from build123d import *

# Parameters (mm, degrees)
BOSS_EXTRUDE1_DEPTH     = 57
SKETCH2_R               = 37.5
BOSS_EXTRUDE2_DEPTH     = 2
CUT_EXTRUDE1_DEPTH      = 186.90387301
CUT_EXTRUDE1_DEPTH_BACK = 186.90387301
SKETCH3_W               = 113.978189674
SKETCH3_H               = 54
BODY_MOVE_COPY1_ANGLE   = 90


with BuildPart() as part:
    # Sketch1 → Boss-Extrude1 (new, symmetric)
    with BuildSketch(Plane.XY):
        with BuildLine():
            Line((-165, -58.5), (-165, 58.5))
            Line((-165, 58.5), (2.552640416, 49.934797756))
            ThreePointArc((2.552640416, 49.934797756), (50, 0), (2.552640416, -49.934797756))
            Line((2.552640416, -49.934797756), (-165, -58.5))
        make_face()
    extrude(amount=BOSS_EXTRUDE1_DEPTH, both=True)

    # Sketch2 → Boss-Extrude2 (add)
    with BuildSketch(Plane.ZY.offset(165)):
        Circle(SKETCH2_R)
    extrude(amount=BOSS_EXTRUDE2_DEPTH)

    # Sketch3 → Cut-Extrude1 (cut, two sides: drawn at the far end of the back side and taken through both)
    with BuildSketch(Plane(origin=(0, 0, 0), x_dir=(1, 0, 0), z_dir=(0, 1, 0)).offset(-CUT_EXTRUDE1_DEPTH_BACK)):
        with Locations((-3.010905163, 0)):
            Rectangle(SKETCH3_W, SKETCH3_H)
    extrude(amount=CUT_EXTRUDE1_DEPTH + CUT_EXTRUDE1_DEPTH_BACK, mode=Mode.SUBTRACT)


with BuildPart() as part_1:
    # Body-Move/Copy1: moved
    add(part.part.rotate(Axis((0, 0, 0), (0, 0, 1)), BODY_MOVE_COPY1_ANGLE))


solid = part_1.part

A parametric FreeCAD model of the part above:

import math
import FreeCAD as App
import Part
import Sketcher
from FreeCAD import Vector

doc = App.newDocument("Part")
body = doc.addObject("PartDesign::Body", "Body")

sketch1 = body.newObject("Sketcher::SketchObject", "Sketch")
sketch1.AttachmentSupport = (doc.getObject("XY_Plane"), [""])
sketch1.MapMode = "FlatFace"
sketch1.addGeometry([
    Part.LineSegment(Vector(-165, 58, 0), Vector(-165, -58, 0)),
    Part.LineSegment(Vector(-165, -58, 0), Vector(3, -50, 0)),
    Part.ArcOfCircle(Part.Circle(Vector(0, 0, 0), Vector(0, 0, 1), 50), math.radians(-87), math.radians(87)),
    Part.LineSegment(Vector(3, 50, 0), Vector(-165, 58, 0)),
], False)
sketch1.addConstraint([
    Sketcher.Constraint("Coincident", 0, 2, 1, 1),
    Sketcher.Constraint("Tangent", 1, 2, 2, 1),
    Sketcher.Constraint("Tangent", 2, 2, 3, 1),
    Sketcher.Constraint("Coincident", 3, 2, 0, 1),
    Sketcher.Constraint("Vertical", 0),
    Sketcher.Constraint("Coincident", 2, 3, -1, 1),
    Sketcher.Constraint("Vertical", 1, 2, 2, 2),
    Sketcher.Constraint("Radius", 2, 50.0),
    Sketcher.Constraint("DistanceY", 0, 2, 0, 1, 117.0),
    Sketcher.Constraint("DistanceX", 0, 2, -1, 1, 165.0),
])
pad1 = body.newObject("PartDesign::Pad", "Pad")
pad1.Profile = sketch1
pad1.Length = 114
pad1.Midplane = True

sketch2 = body.newObject("Sketcher::SketchObject", "Sketch001")
sketch2.AttachmentSupport = (doc.getObject("YZ_Plane"), [""])
sketch2.MapMode = "FlatFace"
sketch2.AttachmentOffset = App.Placement(Vector(0, 0, -165), App.Rotation())
sketch2.addGeometry(Part.Circle(Vector(0, 0, 0), Vector(0, 0, 1), 38), False)
sketch2.addConstraint([
    Sketcher.Constraint("Coincident", 0, 3, -1, 1),
    Sketcher.Constraint("Diameter", 0, 75.0),
])
pad2 = body.newObject("PartDesign::Pad", "Pad001")
pad2.Profile = sketch2
pad2.Length = 2
pad2.Reversed = True

sketch3 = body.newObject("Sketcher::SketchObject", "Sketch002")
sketch3.AttachmentSupport = (doc.getObject("XZ_Plane"), [""])
sketch3.MapMode = "FlatFace"
sketch3.addGeometry([
    Part.LineSegment(Vector(-60, -27, 0), Vector(-60, 27, 0)),
    Part.LineSegment(Vector(-60, 27, 0), Vector(54, 27, 0)),
    Part.LineSegment(Vector(54, 27, 0), Vector(54, -27, 0)),
    Part.LineSegment(Vector(54, -27, 0), Vector(-60, -27, 0)),
], False)
sketch3.addConstraint([
    Sketcher.Constraint("Coincident", 0, 2, 1, 1),
    Sketcher.Constraint("Coincident", 1, 2, 2, 1),
    Sketcher.Constraint("Coincident", 2, 2, 3, 1),
    Sketcher.Constraint("Coincident", 3, 2, 0, 1),
    Sketcher.Constraint("Vertical", 0),
    Sketcher.Constraint("Horizontal", 1),
    Sketcher.Constraint("Vertical", 2),
    Sketcher.Constraint("Horizontal", 3),
    Sketcher.Constraint("DistanceY", 0, 1, 0, 2, 54.0),
    Sketcher.Constraint("DistanceX", 0, 2, -1, 1, 60.0),
    Sketcher.Constraint("DistanceY", -1, 1, 0, 2, 27.0),
    Sketcher.Constraint("DistanceX", 1, 1, 1, 2, 113.97819),
])
pocket1 = body.newObject("PartDesign::Pocket", "Pocket")
pocket1.Profile = sketch3
pocket1.Type = "ThroughAll"
pocket1.Midplane = True
body2 = doc.addObject("PartDesign::Body", "Body001")
doc.recompute()

body.Placement = App.Placement(Vector(0, 0, 0), App.Rotation(Vector(0, 0, 1), 90))
boolean = body2.newObject("PartDesign::Boolean", "Boolean")
boolean.Type = "Fuse"
boolean.addObjects([body])

doc.recompute()
